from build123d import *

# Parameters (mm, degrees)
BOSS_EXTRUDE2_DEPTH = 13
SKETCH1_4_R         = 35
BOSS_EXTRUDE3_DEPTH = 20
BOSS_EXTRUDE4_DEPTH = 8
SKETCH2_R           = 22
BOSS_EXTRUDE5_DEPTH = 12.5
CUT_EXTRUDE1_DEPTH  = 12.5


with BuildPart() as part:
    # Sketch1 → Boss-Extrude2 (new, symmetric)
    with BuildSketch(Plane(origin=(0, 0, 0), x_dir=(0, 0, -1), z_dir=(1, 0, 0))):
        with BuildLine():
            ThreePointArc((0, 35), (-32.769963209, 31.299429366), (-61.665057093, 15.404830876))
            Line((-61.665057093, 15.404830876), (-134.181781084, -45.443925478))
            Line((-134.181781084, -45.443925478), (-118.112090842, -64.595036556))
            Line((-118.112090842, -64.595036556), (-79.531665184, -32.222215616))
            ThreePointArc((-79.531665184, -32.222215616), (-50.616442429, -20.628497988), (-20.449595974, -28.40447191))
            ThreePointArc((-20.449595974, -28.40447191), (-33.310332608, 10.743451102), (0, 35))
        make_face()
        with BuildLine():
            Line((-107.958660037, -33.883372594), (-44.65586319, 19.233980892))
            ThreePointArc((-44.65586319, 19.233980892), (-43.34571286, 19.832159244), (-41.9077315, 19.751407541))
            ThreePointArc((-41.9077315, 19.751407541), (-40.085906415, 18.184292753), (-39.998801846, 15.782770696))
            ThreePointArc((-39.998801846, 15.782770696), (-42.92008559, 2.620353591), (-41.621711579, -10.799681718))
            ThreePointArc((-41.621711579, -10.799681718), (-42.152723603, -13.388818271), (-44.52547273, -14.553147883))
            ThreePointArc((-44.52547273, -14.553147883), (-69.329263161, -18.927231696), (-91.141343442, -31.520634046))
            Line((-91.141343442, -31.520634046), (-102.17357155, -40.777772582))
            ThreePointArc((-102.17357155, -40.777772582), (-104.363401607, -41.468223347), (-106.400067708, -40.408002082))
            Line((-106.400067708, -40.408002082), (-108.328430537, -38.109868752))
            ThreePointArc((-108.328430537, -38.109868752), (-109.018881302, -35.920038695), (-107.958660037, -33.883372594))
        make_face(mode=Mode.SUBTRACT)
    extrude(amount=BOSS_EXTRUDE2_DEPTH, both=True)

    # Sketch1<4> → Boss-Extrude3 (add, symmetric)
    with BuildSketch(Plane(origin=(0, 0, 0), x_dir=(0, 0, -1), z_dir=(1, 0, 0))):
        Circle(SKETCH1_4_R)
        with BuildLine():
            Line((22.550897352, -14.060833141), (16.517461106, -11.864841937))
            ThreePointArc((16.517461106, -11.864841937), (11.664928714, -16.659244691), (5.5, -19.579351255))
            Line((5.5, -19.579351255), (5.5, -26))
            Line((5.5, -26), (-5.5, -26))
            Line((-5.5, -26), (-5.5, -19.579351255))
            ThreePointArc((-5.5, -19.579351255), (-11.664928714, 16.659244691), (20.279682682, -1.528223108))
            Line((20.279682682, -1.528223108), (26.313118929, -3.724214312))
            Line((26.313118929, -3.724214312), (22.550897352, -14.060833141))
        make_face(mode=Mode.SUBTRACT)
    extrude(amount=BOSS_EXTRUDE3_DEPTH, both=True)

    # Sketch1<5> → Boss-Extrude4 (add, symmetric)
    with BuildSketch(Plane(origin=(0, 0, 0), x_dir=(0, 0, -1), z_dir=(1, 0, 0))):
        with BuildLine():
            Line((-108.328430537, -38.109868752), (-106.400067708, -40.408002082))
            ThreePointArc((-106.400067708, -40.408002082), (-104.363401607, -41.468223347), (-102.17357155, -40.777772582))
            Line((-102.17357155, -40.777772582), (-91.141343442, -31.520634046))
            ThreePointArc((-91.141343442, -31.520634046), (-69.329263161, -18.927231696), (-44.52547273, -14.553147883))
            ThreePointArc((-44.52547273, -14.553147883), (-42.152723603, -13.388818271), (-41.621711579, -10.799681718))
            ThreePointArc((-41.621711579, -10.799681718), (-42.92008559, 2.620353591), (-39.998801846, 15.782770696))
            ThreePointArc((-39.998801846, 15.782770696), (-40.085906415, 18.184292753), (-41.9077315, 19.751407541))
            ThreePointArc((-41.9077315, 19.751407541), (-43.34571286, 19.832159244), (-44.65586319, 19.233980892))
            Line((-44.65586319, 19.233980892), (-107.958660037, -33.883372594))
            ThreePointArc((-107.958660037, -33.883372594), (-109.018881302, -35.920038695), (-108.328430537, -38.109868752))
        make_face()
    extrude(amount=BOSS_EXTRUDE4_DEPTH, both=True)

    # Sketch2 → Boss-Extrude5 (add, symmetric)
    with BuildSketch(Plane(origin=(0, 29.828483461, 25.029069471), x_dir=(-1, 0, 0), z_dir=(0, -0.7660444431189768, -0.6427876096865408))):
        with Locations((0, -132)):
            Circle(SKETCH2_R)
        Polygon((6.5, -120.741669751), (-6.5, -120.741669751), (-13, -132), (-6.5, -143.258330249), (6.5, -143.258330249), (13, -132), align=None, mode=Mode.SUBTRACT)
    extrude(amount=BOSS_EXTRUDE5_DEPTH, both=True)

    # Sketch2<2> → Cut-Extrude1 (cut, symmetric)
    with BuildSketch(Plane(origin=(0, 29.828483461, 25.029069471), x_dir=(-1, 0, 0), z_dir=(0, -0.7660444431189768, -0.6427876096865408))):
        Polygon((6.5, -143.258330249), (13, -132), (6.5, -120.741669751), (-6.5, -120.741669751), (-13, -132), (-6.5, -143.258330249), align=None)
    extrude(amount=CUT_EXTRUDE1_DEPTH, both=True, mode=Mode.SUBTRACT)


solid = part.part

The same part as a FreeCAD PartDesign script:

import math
import FreeCAD as App
import Part
import Sketcher

V = App.Vector
Q = App.Units.Quantity


def add_polygon(sketch, points):
    """Adds a closed chain of lines whose ends are joined by coincident constraints."""
    first, n = sketch.GeometryCount, len(points)
    for a, b in zip(points, points[1:] + points[:1]):
        sketch.addGeometry(Part.LineSegment(App.Vector(*a, 0), App.Vector(*b, 0)), False)
    for i in range(n):
        sketch.addConstraint(Sketcher.Constraint("Coincident", first + i, 2, first + (i + 1) % n, 1))

doc = App.newDocument("Part")
body = doc.addObject("PartDesign::Body", "Body")

# Sketch on YZ plane
sketch1 = body.newObject("Sketcher::SketchObject", "Sketch")
sketch1.AttachmentSupport = (doc.getObject("YZ_Plane"), [""])
sketch1.MapMode = "FlatFace"
sketch1.addGeometry([
    Part.ArcOfCircle(Part.Circle(V(-49.708947, 7.02811, 0), V(0, 0, 1), 85), math.radians(-4.742839), math.radians(40)),  # 0
    Part.LineSegment(V(15.404831, 61.665057, 0), V(-45.443925, 134.181781, 0)),  # 1
    Part.LineSegment(V(-45.443925, 134.181781, 0), V(-64.595037, 118.112091, 0)),  # 2
    Part.LineSegment(V(-64.595037, 118.112091, 0), V(-32.222216, 79.531665, 0)),  # 3
    Part.ArcOfCircle(Part.Circle(V(-70.524438, 47.392285, 0), V(0, 0, 1), 50), math.radians(-32.605644), math.radians(40)),  # 4
    Part.ArcOfCircle(Part.Circle(V(0, 0, 0), V(0, 0, 1), 35), math.radians(0), math.radians(144.24827)),  # 5
    Part.ArcOfCircle(Part.Circle(V(-36.181506, 106.030297, 0), V(0, 0, 1), 3), math.radians(40), math.radians(130)),  # 6
    Part.LineSegment(V(-33.883373, 107.95866, 0), V(19.233981, 44.655863, 0)),  # 7
    Part.ArcOfCircle(Part.Circle(V(16.881497, 42.790153, 0), V(0, 0, 1), 3.002508), math.radians(-17.091277), math.radians(38.41726)),  # 8
    Part.ArcOfCircle(Part.Circle(V(16.883894, 42.789416, 0), V(0, 0, 1), 3), math.radians(-111.533254), math.radians(-17.091277)),  # 9
    Part.ArcOfCircle(Part.Circle(V(0, 0, 0), V(0, 0, 1), 43), math.radians(68.466746), math.radians(104.545893)),  # 10
    Part.ArcOfCircle(Part.Circle(V(-11.553148, 44.525552, 0), V(0, 0, 1), 3), math.radians(-179.998488), math.radians(-75.454107)),  # 11
    Part.ArcOfCircle(Part.Circle(V(-87.077547, 44.523558, 0), V(0, 0, 1), 72.524399), math.radians(0.001512), math.radians(40)),  # 12
    Part.LineSegment(V(-31.520634, 91.141343, 0), V(-40.777773, 102.173572, 0)),  # 13
    Part.ArcOfCircle(Part.Circle(V(-38.479639, 104.101934, 0), V(0, 0, 1), 3), math.radians(130), math.radians(220)),  # 14
    Part.LineSegment(V(-40.408002, 106.400068, 0), V(-38.109869, 108.328431, 0)),  # 15
], False)
sketch1.addConstraint([
    Sketcher.Constraint("Coincident", 0, 2, 1, 1),
    Sketcher.Constraint("Coincident", 1, 2, 2, 1),
    Sketcher.Constraint("Coincident", 2, 2, 3, 1),
    Sketcher.Constraint("Coincident", 3, 2, 4, 2),
    Sketcher.Constraint("Coincident", 4, 1, 5, 2),
    Sketcher.Constraint("Coincident", 5, 1, 0, 1),
    Sketcher.Constraint("Coincident", 6, 1, 7, 1),
    Sketcher.Constraint("Coincident", 7, 2, 8, 2),
    Sketcher.Constraint("Coincident", 8, 1, 9, 2),
    Sketcher.Constraint("Coincident", 9, 1, 10, 1),
    Sketcher.Constraint("Coincident", 10, 2, 11, 2),
    Sketcher.Constraint("Coincident", 11, 1, 12, 1),
    Sketcher.Constraint("Coincident", 12, 2, 13, 1),
    Sketcher.Constraint("Coincident", 13, 2, 14, 2),
    Sketcher.Constraint("Coincident", 14, 1, 15, 1),
    Sketcher.Constraint("Coincident", 15, 2, 6, 2),
    Sketcher.Constraint("Coincident", 5, 3, -1, 1),
    Sketcher.Constraint("Coincident", 10, 3, -1, 1),
    Sketcher.Constraint("PointOnObject", 5, 1, -1),
    Sketcher.Constraint("Radius", 0, 85.0),
    Sketcher.Constraint("Radius", 4, 50.0),
    Sketcher.Constraint("Radius", 5, 35.0),
    Sketcher.Constraint("Radius", 6, 3.0),
    Sketcher.Constraint("Radius", 9, 3.0),
    Sketcher.Constraint("Radius", 10, 43.0),
    Sketcher.Constraint("Radius", 11, 3.0),
    Sketcher.Constraint("Radius", 14, 3.0),
    Sketcher.Constraint("Distance", 2, 25.0),
    Sketcher.Constraint("Distance", 15, 3.0),
    Sketcher.Constraint("Radius", 12, 72.524399),
    Sketcher.Constraint("Radius", 8, 3.002508),
    Sketcher.Constraint("DistanceY", -1, 1, 9, 1, 39.998802),
    Sketcher.Constraint("DistanceX", 6, 3, 9, 3, 53.0654),
    Sketcher.Constraint("DistanceY", 8, 3, 11, 3, 1.735399),
    Sketcher.Constraint("DistanceX", 0, 3, 11, 3, 38.155799),
    Sketcher.Constraint("DistanceX", 4, 3, 14, 3, 32.044799),
    Sketcher.Constraint("DistanceX", 4, 3, 2, 2, 5.929401),
    Sketcher.Constraint("DistanceX", 13, 2, 6, 1, 6.8944),
    Sketcher.Constraint("Distance", 1, 94.66386),
    Sketcher.Constraint("Distance", 3, 50.363169),
    Sketcher.Constraint("Distance", 13, 14.401551),
    Sketcher.Constraint("DistanceY", -1, 1, 0, 3, 7.02811),
    Sketcher.Constraint("DistanceY", -1, 1, 12, 3, 44.523558),
    Sketcher.Constraint("DistanceX", 14, 3, -1, 1, 38.479639),
    Sketcher.Constraint("DistanceX", -1, 1, 0, 2, 15.404831),
    Sketcher.Constraint("DistanceY", -1, 1, 1, 2, 134.181781),
    Sketcher.Constraint("DistanceX", 4, 1, -1, 1, 28.404472),
    Sketcher.Constraint("DistanceY", -1, 1, 6, 1, 107.95866),
    Sketcher.Constraint("DistanceX", -1, 1, 7, 2, 19.233981),
    Sketcher.Constraint("DistanceY", -1, 1, 8, 1, 41.907732),
    Sketcher.Constraint("DistanceX", 10, 2, -1, 1, 10.799682),
    Sketcher.Constraint("DistanceY", -1, 1, 13, 2, 102.173572),
    Sketcher.Constraint("DistanceX", 15, 2, -1, 1, 38.109869),
    Sketcher.Constraint("DistanceY", -1, 1, 15, 2, 108.328431),
    Sketcher.Constraint("DistanceX", 4, 3, 6, 3, 34.342932),
    Sketcher.Constraint("DistanceY", 10, 2, 11, 1, 2.903761),
])
pad1 = body.newObject("PartDesign::Pad", "Pad")
pad1.Profile = sketch1
pad1.Length = 26
pad1.Midplane = True

# Sketch on YZ plane
sketch2 = body.newObject("Sketcher::SketchObject", "Sketch001")
sketch2.AttachmentSupport = (doc.getObject("YZ_Plane"), [""])
sketch2.MapMode = "FlatFace"
sketch2.addGeometry([
    Part.Circle(V(0, 0, 0), V(0, 0, 1), 35),  # 0
    Part.LineSegment(V(-3.724214, -26.313119, 0), V(-14.060833, -22.550897, 0)),  # 1
    Part.LineSegment(V(-14.060833, -22.550897, 0), V(-11.864842, -16.517461, 0)),  # 2
    Part.ArcOfCircle(Part.Circle(V(0, 0, 0), V(0, 0, 1), 20.337183), math.radians(-164.309513), math.radians(-125.690487)),  # 3
    Part.LineSegment(V(-19.579351, -5.5, 0), V(-26, -5.5, 0)),  # 4
    Part.LineSegment(V(-26, -5.5, 0), V(-26, 5.5, 0)),  # 5
    Part.LineSegment(V(-26, 5.5, 0), V(-19.579351, 5.5, 0)),  # 6
    Part.ArcOfCircle(Part.Circle(V(0, 0, 0), V(0, 0, 1), 20.337183), math.radians(-94.309513), math.radians(164.309513)),  # 7
    Part.LineSegment(V(-1.528223, -20.279683, 0), V(-3.724214, -26.313119, 0)),  # 8
], False)
sketch2.addConstraint([
    Sketcher.Constraint("Coincident", 1, 2, 2, 1),
    Sketcher.Constraint("Coincident", 2, 2, 3, 2),
    Sketcher.Constraint("Coincident", 3, 1, 4, 1),
    Sketcher.Constraint("Coincident", 4, 2, 5, 1),
    Sketcher.Constraint("Coincident", 5, 2, 6, 1),
    Sketcher.Constraint("Coincident", 6, 2, 7, 2),
    Sketcher.Constraint("Coincident", 7, 1, 8, 1),
    Sketcher.Constraint("Coincident", 8, 2, 1, 1),
    Sketcher.Constraint("Horizontal", 4),
    Sketcher.Constraint("Vertical", 5),
    Sketcher.Constraint("Horizontal", 6),
    Sketcher.Constraint("Coincident", 0, 3, -1, 1),
    Sketcher.Constraint("Coincident", 3, 3, -1, 1),
    Sketcher.Constraint("Coincident", 7, 3, -1, 1),
    Sketcher.Constraint("Equal", 3, 7),
    Sketcher.Constraint("Perpendicular", 1, 2),
    Sketcher.Constraint("Parallel", 2, 8),
    Sketcher.Constraint("Vertical", 3, 1, 6, 2),
    Sketcher.Constraint("Equal", 2, 8),
    Sketcher.Constraint("Diameter", 0, 70.0),
    Sketcher.Constraint("DistanceY", 5, 1, 5, 2, 11.0),
    Sketcher.Constraint("Angle", 1, Q("160 deg")),
    Sketcher.Constraint("Distance", 1, 11.0),
    Sketcher.Constraint("DistanceX", 4, 2, -1, 1, 26.0),
    Sketcher.Constraint("Radius", 3, 20.337183),
    Sketcher.Constraint("Distance", 2, 6.420649),
])
pad2 = body.newObject("PartDesign::Pad", "Pad001")
pad2.Profile = sketch2
pad2.Length = 40
pad2.Midplane = True

# Sketch on YZ plane
sketch3 = body.newObject("Sketcher::SketchObject", "Sketch002")
sketch3.AttachmentSupport = (doc.getObject("YZ_Plane"), [""])
sketch3.MapMode = "FlatFace"
sketch3.addGeometry([
    Part.LineSegment(V(-38.109869, 108.328431, 0), V(-40.408002, 106.400068, 0)),  # 0
    Part.ArcOfCircle(Part.Circle(V(-38.479639, 104.101934, 0), V(0, 0, 1), 3), math.radians(130), math.radians(220)),  # 1
    Part.LineSegment(V(-40.777773, 102.173572, 0), V(-31.520634, 91.141343, 0)),  # 2
    Part.ArcOfCircle(Part.Circle(V(-87.077547, 44.523558, 0), V(0, 0, 1), 72.524399), math.radians(0.001512), math.radians(40)),  # 3
    Part.ArcOfCircle(Part.Circle(V(-11.553148, 44.525552, 0), V(0, 0, 1), 3), math.radians(-179.998488), math.radians(-75.454107)),  # 4
    Part.ArcOfCircle(Part.Circle(V(0, 0, 0), V(0, 0, 1), 43), math.radians(68.466746), math.radians(104.545893)),  # 5
    Part.ArcOfCircle(Part.Circle(V(16.883894, 42.789416, 0), V(0, 0, 1), 3), math.radians(-111.533254), math.radians(-17.091277)),  # 6
    Part.ArcOfCircle(Part.Circle(V(16.881497, 42.790153, 0), V(0, 0, 1), 3.002508), math.radians(-17.091277), math.radians(38.41726)),  # 7
    Part.LineSegment(V(19.233981, 44.655863, 0), V(-33.883373, 107.95866, 0)),  # 8
    Part.ArcOfCircle(Part.Circle(V(-36.181506, 106.030297, 0), V(0, 0, 1), 3), math.radians(40), math.radians(130)),  # 9
], False)
sketch3.addConstraint([
    Sketcher.Constraint("Coincident", 0, 2, 1, 1),
    Sketcher.Constraint("Coincident", 1, 2, 2, 1),
    Sketcher.Constraint("Coincident", 2, 2, 3, 2),
    Sketcher.Constraint("Coincident", 3, 1, 4, 1),
    Sketcher.Constraint("Coincident", 4, 2, 5, 2),
    Sketcher.Constraint("Coincident", 5, 1, 6, 1),
    Sketcher.Constraint("Coincident", 6, 2, 7, 1),
    Sketcher.Constraint("Coincident", 7, 2, 8, 1),
    Sketcher.Constraint("Coincident", 8, 2, 9, 1),
    Sketcher.Constraint("Coincident", 9, 2, 0, 1),
    Sketcher.Constraint("Coincident", 5, 3, -1, 1),
    Sketcher.Constraint("Radius", 1, 3.0),
    Sketcher.Constraint("Radius", 4, 3.0),
    Sketcher.Constraint("Radius", 5, 43.0),
    Sketcher.Constraint("Radius", 6, 3.0),
    Sketcher.Constraint("Radius", 9, 3.0),
    Sketcher.Constraint("Distance", 0, 3.0),
    Sketcher.Constraint("Radius", 3, 72.524399),
    Sketcher.Constraint("Radius", 7, 3.002508),
    Sketcher.Constraint("DistanceY", -1, 1, 5, 1, 39.998802),
    Sketcher.Constraint("DistanceY", 7, 3, 4, 3, 1.735399),
    Sketcher.Constraint("DistanceX", 9, 3, 6, 3, 53.0654),
    Sketcher.Constraint("DistanceX", 0, 2, 7, 3, 57.289499),
    Sketcher.Constraint("DistanceX", 1, 2, 8, 2, 6.8944),
    Sketcher.Constraint("Distance", 2, 14.401551),
    Sketcher.Constraint("DistanceX", 1, 3, -1, 1, 38.479639),
    Sketcher.Constraint("DistanceY", -1, 1, 3, 3, 44.523558),
    Sketcher.Constraint("DistanceY", -1, 1, 4, 3, 44.525552),
    Sketcher.Constraint("DistanceY", -1, 1, 1, 2, 102.173572),
    Sketcher.Constraint("DistanceX", 4, 2, -1, 1, 10.799682),
    Sketcher.Constraint("DistanceY", -1, 1, 6, 2, 41.907731),
    Sketcher.Constraint("DistanceX", -1, 1, 7, 2, 19.233981),
    Sketcher.Constraint("DistanceY", -1, 1, 8, 2, 107.95866),
    Sketcher.Constraint("DistanceX", 9, 2, -1, 1, 38.109869),
    Sketcher.Constraint("DistanceY", -1, 1, 9, 2, 108.328431),
    Sketcher.Constraint("DistanceY", 7, 3, 3, 1, 1.73532),
])
pad3 = body.newObject("PartDesign::Pad", "Pad002")
pad3.Profile = sketch3
pad3.Length = 16
pad3.Midplane = True

# Sketch on an angled plane
sketch4 = body.newObject("Sketcher::SketchObject", "Sketch003")
sketch4.Placement = App.Placement(V(0, 29.828483, 25.029069), App.Rotation(V(-1, 0, 0), V(0, 0.64278761, -0.766044443), V(0, -0.766044443, -0.64278761), "ZXY"))
sketch4.addGeometry(Part.Circle(V(0, -132, 0), V(0, 0, 1), 22), False)  # 0
add_polygon(sketch4, [(-6.5, -120.74167), (6.5, -120.74167), (13, -132), (6.5, -143.25833), (-6.5, -143.25833), (-13, -132)])  # lines 1-6
sketch4.addConstraint([
    Sketcher.Constraint("Horizontal", 1),
    Sketcher.Constraint("Horizontal", 4),
    Sketcher.Constraint("Symmetric", 2, 2, 5, 2, -2),
    Sketcher.Constraint("PointOnObject", 0, 3, -2),
    Sketcher.Constraint("Parallel", 2, 5),
    Sketcher.Constraint("Parallel", 3, 6),
    Sketcher.Constraint("Horizontal", 0, 3, 2, 2),
    Sketcher.Constraint("Vertical", 1, 2, 3, 2),
    Sketcher.Constraint("Vertical", 4, 2, 6, 2),
    Sketcher.Constraint("Diameter", 0, 44.0),
    Sketcher.Constraint("DistanceX", 1, 1, 1, 2, 13.0),
    Sketcher.Constraint("Angle", 2, Q("-60 deg")),
    Sketcher.Constraint("Distance", 2, 13.0),
    Sketcher.Constraint("DistanceY", 0, 3, -1, 1, 132.0),
])
pad4 = body.newObject("PartDesign::Pad", "Pad003")
pad4.Profile = sketch4
pad4.Length = 25
pad4.Midplane = True

# Sketch on an angled plane
sketch5 = body.newObject("Sketcher::SketchObject", "Sketch004")
sketch5.Placement = App.Placement(V(0, 29.828483, 25.029069), App.Rotation(V(-1, 0, 0), V(0, 0.64278761, -0.766044443), V(0, -0.766044443, -0.64278761), "ZXY"))
add_polygon(sketch5, [(6.5, -143.25833), (13, -132), (6.5, -120.74167), (-6.5, -120.74167), (-13, -132), (-6.5, -143.25833)])  # lines 0-5
sketch5.addConstraint([
    Sketcher.Constraint("Horizontal", 2),
    Sketcher.Constraint("Horizontal", 5),
    Sketcher.Constraint("Symmetric", 0, 2, 3, 2, -2),
    Sketcher.Constraint("Parallel", 0, 3),
    Sketcher.Constraint("Parallel", 1, 4),
    Sketcher.Constraint("Vertical", 2, 2, 4, 2),
    Sketcher.Constraint("Vertical", 1, 2, 5, 2),
    Sketcher.Constraint("DistanceX", 2, 2, 2, 1, 13.0),
    Sketcher.Constraint("Angle", 0, Q("60 deg")),
    Sketcher.Constraint("Distance", 0, 13.0),
    Sketcher.Constraint("DistanceY", 0, 2, -1, 1, 132.0),
])
pocket1 = body.newObject("PartDesign::Pocket", "Pocket")
pocket1.Profile = sketch5
pocket1.Length = 25
pocket1.Midplane = True

doc.recompute()
